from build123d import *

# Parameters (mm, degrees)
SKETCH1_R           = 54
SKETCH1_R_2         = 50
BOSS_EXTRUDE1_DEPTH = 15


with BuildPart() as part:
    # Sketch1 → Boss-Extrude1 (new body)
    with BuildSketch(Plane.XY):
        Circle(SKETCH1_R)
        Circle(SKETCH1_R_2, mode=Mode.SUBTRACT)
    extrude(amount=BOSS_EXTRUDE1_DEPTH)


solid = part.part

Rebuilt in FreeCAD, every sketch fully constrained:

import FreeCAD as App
import Part
import Sketcher
from FreeCAD import Vector

doc = App.newDocument("Part")
body = doc.addObject("PartDesign::Body", "Body")

sketch1 = body.newObject("Sketcher::SketchObject", "Sketch")
sketch1.AttachmentSupport = (doc.getObject("XY_Plane"), [""])
sketch1.MapMode = "FlatFace"
sketch1.addGeometry(Part.Circle(Vector(0, 0, 0), Vector(0, 0, 1), 54), False)
sketch1.addGeometry(Part.Circle(Vector(0, 0, 0), Vector(0, 0, 1), 50), False)
sketch1.addConstraint(Sketcher.Constraint("Coincident", 0, 3, -1, 1))
sketch1.addConstraint(Sketcher.Constraint("Coincident", 1, 3, -1, 1))
sketch1.addConstraint(Sketcher.Constraint("Diameter", 0, 108.0))
sketch1.addConstraint(Sketcher.Constraint("Diameter", 1, 100.0))
pad1 = body.newObject("PartDesign::Pad", "Pad")
pad1.Profile = sketch1
pad1.Length = 15

doc.recompute()
